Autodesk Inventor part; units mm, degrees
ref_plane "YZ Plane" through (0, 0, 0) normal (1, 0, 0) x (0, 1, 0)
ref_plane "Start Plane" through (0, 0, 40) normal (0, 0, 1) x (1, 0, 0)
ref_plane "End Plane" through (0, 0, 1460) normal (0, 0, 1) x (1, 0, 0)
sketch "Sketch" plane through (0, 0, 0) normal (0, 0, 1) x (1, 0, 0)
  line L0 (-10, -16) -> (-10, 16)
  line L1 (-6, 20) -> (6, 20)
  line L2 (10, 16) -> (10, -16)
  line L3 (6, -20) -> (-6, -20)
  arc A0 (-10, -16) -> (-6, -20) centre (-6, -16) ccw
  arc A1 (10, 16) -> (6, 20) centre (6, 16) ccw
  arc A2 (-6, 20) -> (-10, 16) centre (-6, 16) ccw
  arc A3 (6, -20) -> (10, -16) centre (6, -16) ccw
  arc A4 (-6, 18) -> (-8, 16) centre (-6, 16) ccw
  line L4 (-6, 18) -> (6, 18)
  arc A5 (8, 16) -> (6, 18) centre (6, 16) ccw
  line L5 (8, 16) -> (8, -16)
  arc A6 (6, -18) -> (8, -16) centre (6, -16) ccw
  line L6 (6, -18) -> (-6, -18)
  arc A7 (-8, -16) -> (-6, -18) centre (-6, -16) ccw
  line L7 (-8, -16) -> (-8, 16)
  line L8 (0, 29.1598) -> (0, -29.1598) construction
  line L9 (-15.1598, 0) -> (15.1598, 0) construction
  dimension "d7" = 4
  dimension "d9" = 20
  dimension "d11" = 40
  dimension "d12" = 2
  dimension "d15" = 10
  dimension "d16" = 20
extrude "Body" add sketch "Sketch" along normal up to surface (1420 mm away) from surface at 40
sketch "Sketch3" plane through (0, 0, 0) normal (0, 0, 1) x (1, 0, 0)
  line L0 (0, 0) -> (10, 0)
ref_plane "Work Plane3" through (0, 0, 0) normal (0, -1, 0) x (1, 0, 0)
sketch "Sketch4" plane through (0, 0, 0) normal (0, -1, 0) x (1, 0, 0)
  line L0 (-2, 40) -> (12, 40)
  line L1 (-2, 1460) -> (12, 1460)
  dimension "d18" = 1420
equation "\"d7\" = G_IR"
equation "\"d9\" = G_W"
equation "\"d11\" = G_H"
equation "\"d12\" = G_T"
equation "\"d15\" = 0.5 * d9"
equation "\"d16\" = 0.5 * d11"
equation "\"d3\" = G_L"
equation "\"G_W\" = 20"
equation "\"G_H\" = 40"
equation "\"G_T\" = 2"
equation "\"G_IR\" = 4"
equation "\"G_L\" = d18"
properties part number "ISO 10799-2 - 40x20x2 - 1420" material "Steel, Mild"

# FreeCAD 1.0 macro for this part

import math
import FreeCAD as App
import Part
import Sketcher

V = App.Vector
Q = App.Units.Quantity

doc = App.newDocument("Part")
body = doc.addObject("PartDesign::Body", "Body")

# Sketch on XY plane
sketch1 = doc.addObject("Sketcher::SketchObject", "Sketch")
body.addObject(sketch1)
sketch1.AttachmentSupport = (doc.XY_Plane, [""])
sketch1.MapMode = "FlatFace"
sketch1.AttachmentOffset = App.Placement(V(0, 0, 40), App.Rotation())
sketch1.addGeometry([
    Part.LineSegment(V(-10, 16, 0), V(-10, -16, 0)),  # 0
    Part.ArcOfCircle(Part.Circle(V(-6, -16, 0), V(0, 0, 1), 4), math.radians(180), math.radians(270)),  # 1
    Part.LineSegment(V(-6, -20, 0), V(6, -20, 0)),  # 2
    Part.ArcOfCircle(Part.Circle(V(6, -16, 0), V(0, 0, 1), 4), math.radians(-90), math.radians(0)),  # 3
    Part.LineSegment(V(10, -16, 0), V(10, 16, 0)),  # 4
    Part.ArcOfCircle(Part.Circle(V(6, 16, 0), V(0, 0, 1), 4), math.radians(0), math.radians(90)),  # 5
    Part.LineSegment(V(6, 20, 0), V(-6, 20, 0)),  # 6
    Part.ArcOfCircle(Part.Circle(V(-6, 16, 0), V(0, 0, 1), 4), math.radians(90), math.radians(180)),  # 7
    Part.ArcOfCircle(Part.Circle(V(-6, 16, 0), V(0, 0, 1), 2), math.radians(90), math.radians(180)),  # 8
    Part.LineSegment(V(-6, 18, 0), V(6, 18, 0)),  # 9
    Part.ArcOfCircle(Part.Circle(V(6, 16, 0), V(0, 0, 1), 2), math.radians(0), math.radians(90)),  # 10
    Part.LineSegment(V(8, 16, 0), V(8, -16, 0)),  # 11
    Part.ArcOfCircle(Part.Circle(V(6, -16, 0), V(0, 0, 1), 2), math.radians(-90), math.radians(0)),  # 12
    Part.LineSegment(V(6, -18, 0), V(-6, -18, 0)),  # 13
    Part.ArcOfCircle(Part.Circle(V(-6, -16, 0), V(0, 0, 1), 2), math.radians(180), math.radians(270)),  # 14
    Part.LineSegment(V(-8, -16, 0), V(-8, 16, 0)),  # 15
], False)
sketch1.addConstraint([
    Sketcher.Constraint("Tangent", 0, 2, 1, 1),
    Sketcher.Constraint("Tangent", 1, 2, 2, 1),
    Sketcher.Constraint("Tangent", 2, 2, 3, 1),
    Sketcher.Constraint("Tangent", 3, 2, 4, 1),
    Sketcher.Constraint("Tangent", 4, 2, 5, 1),
    Sketcher.Constraint("Tangent", 5, 2, 6, 1),
    Sketcher.Constraint("Tangent", 6, 2, 7, 1),
    Sketcher.Constraint("Tangent", 7, 2, 0, 1),
    Sketcher.Constraint("Tangent", 8, 1, 9, 1),
    Sketcher.Constraint("Tangent", 9, 2, 10, 2),
    Sketcher.Constraint("Tangent", 10, 1, 11, 1),
    Sketcher.Constraint("Tangent", 11, 2, 12, 2),
    Sketcher.Constraint("Tangent", 12, 1, 13, 1),
    Sketcher.Constraint("Tangent", 13, 2, 14, 2),
    Sketcher.Constraint("Tangent", 14, 1, 15, 1),
    Sketcher.Constraint("Tangent", 15, 2, 8, 2),
    Sketcher.Constraint("Vertical", 0),
    Sketcher.Constraint("Horizontal", 2),
    Sketcher.Constraint("Vertical", 4),
    Sketcher.Constraint("Horizontal", 6),
    Sketcher.Constraint("Horizontal", 9),
    Sketcher.Constraint("Vertical", 11),
    Sketcher.Constraint("Horizontal", 13),
    Sketcher.Constraint("Vertical", 15),
    Sketcher.Constraint("Coincident", 8, 3, 7, 3),
    Sketcher.Constraint("Coincident", 10, 3, 5, 3),
    Sketcher.Constraint("Coincident", 12, 3, 3, 3),
    Sketcher.Constraint("Equal", 1, 3),
    Sketcher.Constraint("Equal", 3, 5),
    Sketcher.Constraint("Equal", 5, 7),
    Sketcher.Constraint("Equal", 12, 14),
    Sketcher.Constraint("Symmetric", 1, 3, 5, 3, -1, 1),
    Sketcher.Constraint("Radius", 1, Q("4 mm")),
    Sketcher.Constraint("Radius", 8, Q("2 mm")),
    Sketcher.Constraint("DistanceX", 0, 2, -1, 1, Q("10 mm")),
    Sketcher.Constraint("DistanceY", 1, 2, -1, 1, Q("20 mm")),
])
pad1 = doc.addObject("PartDesign::Pad", "Pad")
body.addObject(pad1)
pad1.Profile = sketch1
pad1.Length = 1420

doc.recompute()
